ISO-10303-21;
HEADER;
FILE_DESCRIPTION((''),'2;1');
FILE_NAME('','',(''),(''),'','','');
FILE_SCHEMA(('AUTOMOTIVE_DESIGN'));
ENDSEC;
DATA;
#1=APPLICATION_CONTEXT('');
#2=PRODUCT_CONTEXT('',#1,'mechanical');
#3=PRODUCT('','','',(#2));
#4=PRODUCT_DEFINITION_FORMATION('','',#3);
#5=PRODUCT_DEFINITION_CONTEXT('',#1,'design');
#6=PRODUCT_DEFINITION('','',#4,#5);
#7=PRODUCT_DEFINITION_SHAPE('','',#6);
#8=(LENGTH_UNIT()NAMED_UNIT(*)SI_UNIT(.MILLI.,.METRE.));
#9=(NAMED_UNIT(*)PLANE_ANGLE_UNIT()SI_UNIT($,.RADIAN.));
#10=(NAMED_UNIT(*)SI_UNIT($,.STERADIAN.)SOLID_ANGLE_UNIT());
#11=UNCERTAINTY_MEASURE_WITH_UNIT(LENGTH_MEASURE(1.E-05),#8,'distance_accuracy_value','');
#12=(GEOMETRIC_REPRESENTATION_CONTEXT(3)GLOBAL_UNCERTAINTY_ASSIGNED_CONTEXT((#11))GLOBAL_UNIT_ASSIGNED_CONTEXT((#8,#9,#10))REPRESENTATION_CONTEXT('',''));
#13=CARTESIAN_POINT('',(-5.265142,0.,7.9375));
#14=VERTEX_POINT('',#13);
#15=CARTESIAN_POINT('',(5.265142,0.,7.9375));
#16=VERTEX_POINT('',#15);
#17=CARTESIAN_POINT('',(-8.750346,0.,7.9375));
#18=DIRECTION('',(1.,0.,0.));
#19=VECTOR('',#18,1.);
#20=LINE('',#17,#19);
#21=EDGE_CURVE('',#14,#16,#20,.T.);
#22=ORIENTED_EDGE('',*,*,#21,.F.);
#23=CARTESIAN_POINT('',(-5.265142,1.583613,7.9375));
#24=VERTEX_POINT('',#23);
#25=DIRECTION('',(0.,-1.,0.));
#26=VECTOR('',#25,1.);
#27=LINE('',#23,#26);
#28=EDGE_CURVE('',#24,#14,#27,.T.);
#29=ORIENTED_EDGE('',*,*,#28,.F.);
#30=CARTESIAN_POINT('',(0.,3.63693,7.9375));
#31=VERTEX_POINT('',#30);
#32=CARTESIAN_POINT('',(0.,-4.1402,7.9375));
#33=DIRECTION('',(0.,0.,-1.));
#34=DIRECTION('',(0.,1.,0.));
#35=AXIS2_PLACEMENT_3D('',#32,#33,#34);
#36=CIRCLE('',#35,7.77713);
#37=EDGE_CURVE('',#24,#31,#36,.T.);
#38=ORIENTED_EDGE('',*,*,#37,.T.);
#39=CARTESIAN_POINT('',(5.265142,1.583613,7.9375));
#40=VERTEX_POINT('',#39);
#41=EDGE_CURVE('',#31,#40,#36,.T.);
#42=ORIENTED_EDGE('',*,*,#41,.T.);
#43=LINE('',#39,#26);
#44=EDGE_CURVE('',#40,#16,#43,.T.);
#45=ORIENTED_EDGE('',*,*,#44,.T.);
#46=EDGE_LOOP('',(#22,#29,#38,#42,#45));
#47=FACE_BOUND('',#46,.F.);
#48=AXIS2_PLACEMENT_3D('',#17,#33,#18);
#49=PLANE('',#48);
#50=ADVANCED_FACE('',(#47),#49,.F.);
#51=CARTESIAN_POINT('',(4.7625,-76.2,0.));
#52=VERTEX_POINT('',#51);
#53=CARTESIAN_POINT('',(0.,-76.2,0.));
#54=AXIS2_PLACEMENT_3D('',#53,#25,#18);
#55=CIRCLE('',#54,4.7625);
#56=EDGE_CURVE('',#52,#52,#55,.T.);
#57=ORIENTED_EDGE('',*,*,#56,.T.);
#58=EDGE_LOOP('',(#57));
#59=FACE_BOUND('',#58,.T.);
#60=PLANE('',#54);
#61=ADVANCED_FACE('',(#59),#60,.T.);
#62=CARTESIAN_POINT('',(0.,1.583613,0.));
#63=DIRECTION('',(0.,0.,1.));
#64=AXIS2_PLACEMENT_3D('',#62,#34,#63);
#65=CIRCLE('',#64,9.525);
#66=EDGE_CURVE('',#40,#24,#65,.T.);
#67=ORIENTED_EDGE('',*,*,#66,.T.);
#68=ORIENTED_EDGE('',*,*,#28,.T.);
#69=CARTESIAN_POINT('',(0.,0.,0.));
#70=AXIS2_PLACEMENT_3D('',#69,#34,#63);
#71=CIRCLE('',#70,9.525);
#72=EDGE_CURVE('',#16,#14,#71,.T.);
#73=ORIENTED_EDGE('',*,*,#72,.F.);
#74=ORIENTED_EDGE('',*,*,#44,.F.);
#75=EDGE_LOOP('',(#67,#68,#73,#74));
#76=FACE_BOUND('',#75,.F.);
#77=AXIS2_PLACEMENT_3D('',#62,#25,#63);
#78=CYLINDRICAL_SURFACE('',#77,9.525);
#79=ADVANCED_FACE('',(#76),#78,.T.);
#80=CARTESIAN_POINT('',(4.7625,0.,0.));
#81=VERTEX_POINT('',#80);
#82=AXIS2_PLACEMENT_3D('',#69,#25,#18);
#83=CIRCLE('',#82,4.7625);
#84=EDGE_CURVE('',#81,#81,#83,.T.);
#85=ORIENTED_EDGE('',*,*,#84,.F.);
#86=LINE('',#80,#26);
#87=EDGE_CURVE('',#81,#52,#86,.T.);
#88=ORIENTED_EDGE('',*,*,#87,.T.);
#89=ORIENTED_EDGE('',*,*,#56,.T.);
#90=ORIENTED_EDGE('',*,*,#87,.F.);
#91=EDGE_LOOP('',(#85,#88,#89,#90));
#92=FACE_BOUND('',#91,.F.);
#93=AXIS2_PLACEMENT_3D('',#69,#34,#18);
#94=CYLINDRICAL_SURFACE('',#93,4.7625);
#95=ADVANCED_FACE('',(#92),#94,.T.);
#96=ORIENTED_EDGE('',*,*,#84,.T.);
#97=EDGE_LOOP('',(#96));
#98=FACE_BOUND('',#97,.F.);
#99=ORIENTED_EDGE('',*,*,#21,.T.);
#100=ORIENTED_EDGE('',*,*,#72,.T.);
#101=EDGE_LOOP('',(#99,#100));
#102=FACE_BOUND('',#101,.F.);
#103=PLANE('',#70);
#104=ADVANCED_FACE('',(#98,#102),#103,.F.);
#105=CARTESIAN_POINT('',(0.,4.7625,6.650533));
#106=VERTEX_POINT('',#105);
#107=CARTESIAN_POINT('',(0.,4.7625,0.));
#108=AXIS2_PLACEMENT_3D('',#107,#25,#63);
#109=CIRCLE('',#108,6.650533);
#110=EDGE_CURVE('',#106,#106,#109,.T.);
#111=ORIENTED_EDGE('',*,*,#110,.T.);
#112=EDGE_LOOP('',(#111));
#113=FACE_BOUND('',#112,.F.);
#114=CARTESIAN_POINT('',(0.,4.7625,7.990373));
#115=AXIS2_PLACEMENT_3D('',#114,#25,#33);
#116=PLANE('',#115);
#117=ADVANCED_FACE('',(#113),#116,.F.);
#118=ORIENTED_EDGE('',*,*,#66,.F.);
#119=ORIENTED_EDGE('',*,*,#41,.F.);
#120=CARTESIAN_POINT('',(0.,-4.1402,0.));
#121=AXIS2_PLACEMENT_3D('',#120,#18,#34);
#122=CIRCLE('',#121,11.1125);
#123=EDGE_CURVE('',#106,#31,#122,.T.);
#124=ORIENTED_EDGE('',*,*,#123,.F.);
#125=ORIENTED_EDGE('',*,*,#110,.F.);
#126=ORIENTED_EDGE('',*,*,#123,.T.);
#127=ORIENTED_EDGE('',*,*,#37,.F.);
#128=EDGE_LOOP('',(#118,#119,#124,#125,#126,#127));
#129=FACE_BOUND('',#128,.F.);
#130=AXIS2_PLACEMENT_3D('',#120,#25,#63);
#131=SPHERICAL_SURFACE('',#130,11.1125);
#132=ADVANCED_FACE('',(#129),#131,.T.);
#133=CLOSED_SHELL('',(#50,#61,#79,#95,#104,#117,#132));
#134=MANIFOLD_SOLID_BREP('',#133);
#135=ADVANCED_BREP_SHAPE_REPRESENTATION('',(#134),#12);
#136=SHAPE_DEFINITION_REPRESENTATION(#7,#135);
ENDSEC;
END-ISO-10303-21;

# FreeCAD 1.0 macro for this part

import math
import FreeCAD as App
import Part
import Sketcher

V = App.Vector
Q = App.Units.Quantity

doc = App.newDocument("Part")
body = doc.addObject("PartDesign::Body", "Body")

# Sketch on XZ plane
sketch1 = body.newObject("Sketcher::SketchObject", "Sketch")
sketch1.AttachmentSupport = (doc.getObject("XZ_Plane"), [""])
sketch1.MapMode = "FlatFace"
sketch1.addGeometry(Part.Circle(V(0, 0, 0), V(0, 0, 1), 4.7625), False)
sketch1.addConstraint(Sketcher.Constraint("Coincident", 0, 3, -1, 1))
sketch1.addConstraint(Sketcher.Constraint("Diameter", 0, Q("0.375 in")))
pad1 = body.newObject("PartDesign::Pad", "Pad")
pad1.Profile = sketch1
pad1.Length = Q("3 in")

# Sketch on YZ plane
sketch2 = body.newObject("Sketcher::SketchObject", "Sketch001")
sketch2.AttachmentSupport = (doc.getObject("YZ_Plane"), [""])
sketch2.MapMode = "FlatFace"
sketch2.addGeometry(Part.LineSegment(V(0, 9.525, 0), V(0, 0, 0)), False)
sketch2.addGeometry(Part.LineSegment(V(0, 0, 0), V(6.9723, 0, 0)), False)
sketch2.addGeometry(Part.ArcOfCircle(Part.Circle(V(-4.1402, 0, 0), V(0, 0, 1), 11.1125), math.radians(0), math.radians(58.997281)), False)
sketch2.addGeometry(Part.LineSegment(V(1.583613, 9.525, 0), V(0, 9.525, 0)), False)
sketch2.addConstraint(Sketcher.Constraint("Coincident", 0, 2, 1, 1))
sketch2.addConstraint(Sketcher.Constraint("Coincident", 1, 2, 2, 1))
sketch2.addConstraint(Sketcher.Constraint("Coincident", 2, 2, 3, 1))
sketch2.addConstraint(Sketcher.Constraint("Coincident", 3, 2, 0, 1))
sketch2.addConstraint(Sketcher.Constraint("Vertical", 0))
sketch2.addConstraint(Sketcher.Constraint("Horizontal", 1))
sketch2.addConstraint(Sketcher.Constraint("Horizontal", 3))
sketch2.addConstraint(Sketcher.Constraint("Coincident", 0, 2, -1, 1))
sketch2.addConstraint(Sketcher.Constraint("PointOnObject", 2, 3, -1))
sketch2.addConstraint(Sketcher.Constraint("Radius", 2, Q("0.4375 in")))
sketch2.addConstraint(Sketcher.Constraint("DistanceY", 0, 2, 0, 1, Q("0.375 in")))
sketch2.addConstraint(Sketcher.Constraint("DistanceX", 1, 1, 1, 2, Q("0.2745 in")))
revolution = body.newObject("PartDesign::Revolution", "Revolution")
revolution.Profile = sketch2
revolution.ReferenceAxis = (sketch2, ["H_Axis"])
revolution.Angle = 360

# Sketch on YZ plane
sketch3 = body.newObject("Sketcher::SketchObject", "Sketch002")
sketch3.AttachmentSupport = (doc.getObject("YZ_Plane"), [""])
sketch3.MapMode = "FlatFace"
sketch3.addGeometry(Part.LineSegment(V(4.7625, 7.990373, 0), V(4.7625, -11.37777, 0)), False)
sketch3.addGeometry(Part.LineSegment(V(4.7625, -11.37777, 0), V(8.822294, -11.37777, 0)), False)
sketch3.addGeometry(Part.LineSegment(V(8.822294, -11.37777, 0), V(8.822294, 7.990373, 0)), False)
sketch3.addGeometry(Part.LineSegment(V(8.822294, 7.990373, 0), V(4.7625, 7.990373, 0)), False)
sketch3.addConstraint(Sketcher.Constraint("Coincident", 0, 2, 1, 1))
sketch3.addConstraint(Sketcher.Constraint("Coincident", 1, 2, 2, 1))
sketch3.addConstraint(Sketcher.Constraint("Coincident", 2, 2, 3, 1))
sketch3.addConstraint(Sketcher.Constraint("Coincident", 3, 2, 0, 1))
sketch3.addConstraint(Sketcher.Constraint("Vertical", 0))
sketch3.addConstraint(Sketcher.Constraint("Horizontal", 1))
sketch3.addConstraint(Sketcher.Constraint("Vertical", 2))
sketch3.addConstraint(Sketcher.Constraint("Horizontal", 3))
sketch3.addConstraint(Sketcher.Constraint("DistanceX", -1, 1, 0, 2, Q("0.1875 in")))
sketch3.addConstraint(Sketcher.Constraint("DistanceX", 1, 1, 1, 2, 4.059794))
sketch3.addConstraint(Sketcher.Constraint("DistanceY", 0, 2, 0, 1, 19.368143))
sketch3.addConstraint(Sketcher.Constraint("DistanceY", 0, 2, -1, 1, 11.37777))
pocket1 = body.newObject("PartDesign::Pocket", "Pocket")
pocket1.Profile = sketch3
pocket1.Type = "ThroughAll"
pocket1.Midplane = True

# Sketch on XZ plane
sketch4 = body.newObject("Sketcher::SketchObject", "Sketch003")
sketch4.AttachmentSupport = (doc.getObject("XZ_Plane"), [""])
sketch4.MapMode = "FlatFace"
sketch4.addGeometry(Part.LineSegment(V(-8.750346, 7.9375, 0), V(10.309545, 7.9375, 0)), False)
sketch4.addGeometry(Part.LineSegment(V(10.309545, 7.9375, 0), V(10.309545, 11.565819, 0)), False)
sketch4.addGeometry(Part.LineSegment(V(10.309545, 11.565819, 0), V(-8.750346, 11.565819, 0)), False)
sketch4.addGeometry(Part.LineSegment(V(-8.750346, 11.565819, 0), V(-8.750346, 7.9375, 0)), False)
sketch4.addConstraint(Sketcher.Constraint("Coincident", 0, 2, 1, 1))
sketch4.addConstraint(Sketcher.Constraint("Coincident", 1, 2, 2, 1))
sketch4.addConstraint(Sketcher.Constraint("Coincident", 2, 2, 3, 1))
sketch4.addConstraint(Sketcher.Constraint("Coincident", 3, 2, 0, 1))
sketch4.addConstraint(Sketcher.Constraint("Horizontal", 0))
sketch4.addConstraint(Sketcher.Constraint("Vertical", 1))
sketch4.addConstraint(Sketcher.Constraint("Horizontal", 2))
sketch4.addConstraint(Sketcher.Constraint("Vertical", 3))
sketch4.addConstraint(Sketcher.Constraint("DistanceY", -1, 1, 0, 2, Q("0.3125 in")))
sketch4.addConstraint(Sketcher.Constraint("DistanceX", 0, 1, 0, 2, 19.059891))
sketch4.addConstraint(Sketcher.Constraint("DistanceY", 1, 1, 1, 2, 3.628319))
sketch4.addConstraint(Sketcher.Constraint("DistanceX", -1, 1, 0, 2, 10.309545))
pocket2 = body.newObject("PartDesign::Pocket", "Pocket001")
pocket2.Profile = sketch4
pocket2.Length = Q("1 in")

doc.recompute()
